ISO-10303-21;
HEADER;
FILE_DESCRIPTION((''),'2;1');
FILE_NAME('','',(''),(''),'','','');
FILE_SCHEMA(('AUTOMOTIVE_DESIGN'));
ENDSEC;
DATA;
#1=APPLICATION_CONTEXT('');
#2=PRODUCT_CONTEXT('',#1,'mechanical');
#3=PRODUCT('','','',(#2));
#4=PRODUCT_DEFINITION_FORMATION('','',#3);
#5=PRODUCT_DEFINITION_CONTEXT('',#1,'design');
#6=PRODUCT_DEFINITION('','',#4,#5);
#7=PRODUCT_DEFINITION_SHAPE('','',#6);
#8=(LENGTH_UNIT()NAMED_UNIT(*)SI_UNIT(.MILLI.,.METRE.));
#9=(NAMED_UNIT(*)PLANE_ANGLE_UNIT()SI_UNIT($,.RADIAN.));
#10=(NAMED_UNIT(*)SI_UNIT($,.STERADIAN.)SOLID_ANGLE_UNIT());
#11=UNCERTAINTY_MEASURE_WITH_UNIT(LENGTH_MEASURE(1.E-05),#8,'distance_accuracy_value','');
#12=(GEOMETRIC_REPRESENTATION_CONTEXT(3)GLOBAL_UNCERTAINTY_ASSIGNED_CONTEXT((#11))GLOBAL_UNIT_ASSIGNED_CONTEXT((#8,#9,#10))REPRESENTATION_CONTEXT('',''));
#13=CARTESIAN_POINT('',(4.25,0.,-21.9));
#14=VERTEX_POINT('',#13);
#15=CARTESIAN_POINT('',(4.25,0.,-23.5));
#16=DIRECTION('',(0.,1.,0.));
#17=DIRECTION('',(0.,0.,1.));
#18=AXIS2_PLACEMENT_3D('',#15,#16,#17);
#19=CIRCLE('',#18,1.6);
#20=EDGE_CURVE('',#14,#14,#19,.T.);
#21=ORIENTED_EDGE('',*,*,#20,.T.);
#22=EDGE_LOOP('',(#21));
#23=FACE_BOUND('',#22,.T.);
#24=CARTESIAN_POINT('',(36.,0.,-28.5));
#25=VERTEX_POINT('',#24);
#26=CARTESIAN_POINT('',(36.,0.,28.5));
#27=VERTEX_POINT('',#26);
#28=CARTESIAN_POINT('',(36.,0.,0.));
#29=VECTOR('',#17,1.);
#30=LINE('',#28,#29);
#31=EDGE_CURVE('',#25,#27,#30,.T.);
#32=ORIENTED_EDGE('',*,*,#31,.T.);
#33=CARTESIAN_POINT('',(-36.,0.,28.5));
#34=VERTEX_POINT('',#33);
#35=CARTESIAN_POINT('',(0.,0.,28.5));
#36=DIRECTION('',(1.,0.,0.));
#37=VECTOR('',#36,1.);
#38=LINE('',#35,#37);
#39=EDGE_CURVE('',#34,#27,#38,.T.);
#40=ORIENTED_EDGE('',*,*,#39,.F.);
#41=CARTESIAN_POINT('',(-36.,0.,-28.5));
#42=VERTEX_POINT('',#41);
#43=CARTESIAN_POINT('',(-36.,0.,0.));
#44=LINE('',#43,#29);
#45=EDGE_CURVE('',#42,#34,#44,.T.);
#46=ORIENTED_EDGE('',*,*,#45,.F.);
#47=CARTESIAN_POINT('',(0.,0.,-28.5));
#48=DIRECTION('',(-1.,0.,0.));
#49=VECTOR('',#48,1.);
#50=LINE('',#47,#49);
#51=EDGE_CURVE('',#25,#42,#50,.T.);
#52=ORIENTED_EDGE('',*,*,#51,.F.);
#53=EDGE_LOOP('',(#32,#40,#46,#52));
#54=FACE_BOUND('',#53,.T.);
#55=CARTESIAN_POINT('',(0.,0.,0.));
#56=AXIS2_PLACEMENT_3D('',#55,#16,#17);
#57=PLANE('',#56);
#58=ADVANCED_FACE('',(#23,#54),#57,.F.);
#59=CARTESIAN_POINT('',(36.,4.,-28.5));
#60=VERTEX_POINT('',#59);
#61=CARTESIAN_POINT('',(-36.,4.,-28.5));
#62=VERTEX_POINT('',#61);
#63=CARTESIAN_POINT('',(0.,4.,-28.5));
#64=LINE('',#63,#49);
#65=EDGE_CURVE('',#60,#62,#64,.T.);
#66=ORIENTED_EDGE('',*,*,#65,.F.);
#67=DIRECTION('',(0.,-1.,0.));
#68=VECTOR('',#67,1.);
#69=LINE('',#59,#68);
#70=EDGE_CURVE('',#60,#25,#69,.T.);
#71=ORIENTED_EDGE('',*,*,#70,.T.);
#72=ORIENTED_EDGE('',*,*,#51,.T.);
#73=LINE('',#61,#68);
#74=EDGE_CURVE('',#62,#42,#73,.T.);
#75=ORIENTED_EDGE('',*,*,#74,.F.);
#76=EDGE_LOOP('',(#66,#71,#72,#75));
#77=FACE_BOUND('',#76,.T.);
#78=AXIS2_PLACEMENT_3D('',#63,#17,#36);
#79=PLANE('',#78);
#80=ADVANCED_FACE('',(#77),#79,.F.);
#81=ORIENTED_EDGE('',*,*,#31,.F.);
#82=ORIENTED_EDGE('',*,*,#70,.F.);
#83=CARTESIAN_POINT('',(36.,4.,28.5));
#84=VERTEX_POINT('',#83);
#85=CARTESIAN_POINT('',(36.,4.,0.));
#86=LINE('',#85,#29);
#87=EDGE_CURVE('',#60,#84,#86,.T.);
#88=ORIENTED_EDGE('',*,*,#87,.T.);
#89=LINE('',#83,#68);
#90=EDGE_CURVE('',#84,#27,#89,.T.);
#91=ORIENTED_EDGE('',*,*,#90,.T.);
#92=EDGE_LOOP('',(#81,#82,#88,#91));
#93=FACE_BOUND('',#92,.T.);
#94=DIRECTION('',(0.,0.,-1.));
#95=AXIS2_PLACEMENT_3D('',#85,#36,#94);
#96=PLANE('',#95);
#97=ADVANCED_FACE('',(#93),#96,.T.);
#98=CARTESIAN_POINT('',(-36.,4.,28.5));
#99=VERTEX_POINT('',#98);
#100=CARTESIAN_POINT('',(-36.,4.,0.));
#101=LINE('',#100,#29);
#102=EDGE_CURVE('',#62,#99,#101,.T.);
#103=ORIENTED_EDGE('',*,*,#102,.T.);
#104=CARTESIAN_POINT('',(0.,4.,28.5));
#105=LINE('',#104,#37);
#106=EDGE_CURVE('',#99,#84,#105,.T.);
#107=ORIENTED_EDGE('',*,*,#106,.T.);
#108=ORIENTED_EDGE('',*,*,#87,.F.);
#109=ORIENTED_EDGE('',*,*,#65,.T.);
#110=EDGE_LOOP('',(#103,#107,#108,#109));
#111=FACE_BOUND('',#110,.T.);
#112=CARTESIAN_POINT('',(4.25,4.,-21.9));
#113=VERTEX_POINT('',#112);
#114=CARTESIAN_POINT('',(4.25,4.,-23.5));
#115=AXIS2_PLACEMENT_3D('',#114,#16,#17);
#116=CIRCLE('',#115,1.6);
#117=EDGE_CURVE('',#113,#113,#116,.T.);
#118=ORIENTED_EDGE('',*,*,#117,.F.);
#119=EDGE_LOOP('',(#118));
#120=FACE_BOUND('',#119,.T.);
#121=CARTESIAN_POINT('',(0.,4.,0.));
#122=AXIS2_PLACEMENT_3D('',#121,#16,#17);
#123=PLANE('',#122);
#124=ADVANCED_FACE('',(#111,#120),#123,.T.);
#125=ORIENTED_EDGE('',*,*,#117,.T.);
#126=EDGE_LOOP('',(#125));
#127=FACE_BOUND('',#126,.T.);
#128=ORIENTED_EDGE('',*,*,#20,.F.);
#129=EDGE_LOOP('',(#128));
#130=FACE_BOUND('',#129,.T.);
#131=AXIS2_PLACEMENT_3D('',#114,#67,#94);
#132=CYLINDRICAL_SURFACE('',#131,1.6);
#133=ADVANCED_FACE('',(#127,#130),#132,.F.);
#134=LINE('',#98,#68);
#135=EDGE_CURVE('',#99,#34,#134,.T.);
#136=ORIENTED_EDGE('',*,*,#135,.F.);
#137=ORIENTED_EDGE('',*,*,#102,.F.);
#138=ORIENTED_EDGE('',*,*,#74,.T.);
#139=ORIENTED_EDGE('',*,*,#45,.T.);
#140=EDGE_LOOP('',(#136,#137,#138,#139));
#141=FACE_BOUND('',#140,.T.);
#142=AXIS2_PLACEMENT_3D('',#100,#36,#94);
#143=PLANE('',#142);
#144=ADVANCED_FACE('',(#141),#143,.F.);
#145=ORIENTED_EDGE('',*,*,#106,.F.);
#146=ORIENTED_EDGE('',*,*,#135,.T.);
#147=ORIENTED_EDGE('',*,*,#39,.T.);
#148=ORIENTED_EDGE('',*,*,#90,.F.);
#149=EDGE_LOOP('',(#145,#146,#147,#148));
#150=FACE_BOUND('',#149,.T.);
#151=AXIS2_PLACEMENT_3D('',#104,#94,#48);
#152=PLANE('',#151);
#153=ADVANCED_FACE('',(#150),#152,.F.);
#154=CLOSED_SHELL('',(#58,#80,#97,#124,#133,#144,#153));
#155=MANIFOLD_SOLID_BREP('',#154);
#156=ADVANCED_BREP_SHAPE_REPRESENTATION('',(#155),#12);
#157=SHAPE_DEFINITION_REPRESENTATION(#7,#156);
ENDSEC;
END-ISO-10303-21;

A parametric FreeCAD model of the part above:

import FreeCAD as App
import Part
import Sketcher
Q = App.Units.Quantity

doc = App.newDocument("Part")
params = doc.addObject("Spreadsheet::Sheet", "Params")
for row, (alias, value) in enumerate([
    ("sketch1_diameter", "3.2 mm"),
    ("sketch1_width", "72 mm"),
    ("sketch1_height", "57 mm"),
    ("pad1_length", "4 mm"),
], start=1):
    params.set(f"A{row}", alias)
    params.set(f"B{row}", "=" + value)
    params.setAlias(f"B{row}", alias)

body = doc.addObject("PartDesign::Body", "Body")

sketch1 = doc.addObject("Sketcher::SketchObject", "Sketch")
body.addObject(sketch1)
sketch1.AttachmentSupport = (doc.XZ_Plane, [""])
sketch1.MapMode = "FlatFace"
sketch1.addGeometry([
    Part.LineSegment(App.Vector(36, 28.5, 0), App.Vector(36, -28.5, 0)),
    Part.LineSegment(App.Vector(36, -28.5, 0), App.Vector(-36, -28.5, 0)),
    Part.LineSegment(App.Vector(-36, -28.5, 0), App.Vector(-36, 28.5, 0)),
    Part.LineSegment(App.Vector(-36, 28.5, 0), App.Vector(36, 28.5, 0)),
    Part.Circle(App.Vector(4.25, -23.5, 0), App.Vector(0, 0, 1), 1.6),
], False)
sketch1.addConstraint([
    Sketcher.Constraint("Coincident", 0, 2, 1, 1),
    Sketcher.Constraint("Coincident", 1, 2, 2, 1),
    Sketcher.Constraint("Coincident", 2, 2, 3, 1),
    Sketcher.Constraint("Coincident", 3, 2, 0, 1),
    Sketcher.Constraint("Vertical", 0),
    Sketcher.Constraint("Horizontal", 1),
    Sketcher.Constraint("Vertical", 2),
    Sketcher.Constraint("Horizontal", 3),
    Sketcher.Constraint("Symmetric", 0, 2, 2, 2, -1, 1),
    Sketcher.Constraint("Diameter", 4, Q("3.2 mm")),
    Sketcher.Constraint("DistanceX", 1, 2, 1, 1, Q("72 mm")),
    Sketcher.Constraint("DistanceY", 0, 2, 0, 1, Q("57 mm")),
    Sketcher.Constraint("DistanceY", 0, 2, 4, 3, Q("5 mm")),
    Sketcher.Constraint("DistanceX", -1, 1, 4, 3, Q("4.25 mm")),
])
sketch1.setExpression("Constraints[9]", "Params.sketch1_diameter")
sketch1.setExpression("Constraints[10]", "Params.sketch1_width")
sketch1.setExpression("Constraints[11]", "Params.sketch1_height")
pad1 = doc.addObject("PartDesign::Pad", "Pad")
body.addObject(pad1)
pad1.Profile = sketch1
pad1.setExpression("Length", "Params.pad1_length")
pad1.Reversed = True

doc.recompute()
